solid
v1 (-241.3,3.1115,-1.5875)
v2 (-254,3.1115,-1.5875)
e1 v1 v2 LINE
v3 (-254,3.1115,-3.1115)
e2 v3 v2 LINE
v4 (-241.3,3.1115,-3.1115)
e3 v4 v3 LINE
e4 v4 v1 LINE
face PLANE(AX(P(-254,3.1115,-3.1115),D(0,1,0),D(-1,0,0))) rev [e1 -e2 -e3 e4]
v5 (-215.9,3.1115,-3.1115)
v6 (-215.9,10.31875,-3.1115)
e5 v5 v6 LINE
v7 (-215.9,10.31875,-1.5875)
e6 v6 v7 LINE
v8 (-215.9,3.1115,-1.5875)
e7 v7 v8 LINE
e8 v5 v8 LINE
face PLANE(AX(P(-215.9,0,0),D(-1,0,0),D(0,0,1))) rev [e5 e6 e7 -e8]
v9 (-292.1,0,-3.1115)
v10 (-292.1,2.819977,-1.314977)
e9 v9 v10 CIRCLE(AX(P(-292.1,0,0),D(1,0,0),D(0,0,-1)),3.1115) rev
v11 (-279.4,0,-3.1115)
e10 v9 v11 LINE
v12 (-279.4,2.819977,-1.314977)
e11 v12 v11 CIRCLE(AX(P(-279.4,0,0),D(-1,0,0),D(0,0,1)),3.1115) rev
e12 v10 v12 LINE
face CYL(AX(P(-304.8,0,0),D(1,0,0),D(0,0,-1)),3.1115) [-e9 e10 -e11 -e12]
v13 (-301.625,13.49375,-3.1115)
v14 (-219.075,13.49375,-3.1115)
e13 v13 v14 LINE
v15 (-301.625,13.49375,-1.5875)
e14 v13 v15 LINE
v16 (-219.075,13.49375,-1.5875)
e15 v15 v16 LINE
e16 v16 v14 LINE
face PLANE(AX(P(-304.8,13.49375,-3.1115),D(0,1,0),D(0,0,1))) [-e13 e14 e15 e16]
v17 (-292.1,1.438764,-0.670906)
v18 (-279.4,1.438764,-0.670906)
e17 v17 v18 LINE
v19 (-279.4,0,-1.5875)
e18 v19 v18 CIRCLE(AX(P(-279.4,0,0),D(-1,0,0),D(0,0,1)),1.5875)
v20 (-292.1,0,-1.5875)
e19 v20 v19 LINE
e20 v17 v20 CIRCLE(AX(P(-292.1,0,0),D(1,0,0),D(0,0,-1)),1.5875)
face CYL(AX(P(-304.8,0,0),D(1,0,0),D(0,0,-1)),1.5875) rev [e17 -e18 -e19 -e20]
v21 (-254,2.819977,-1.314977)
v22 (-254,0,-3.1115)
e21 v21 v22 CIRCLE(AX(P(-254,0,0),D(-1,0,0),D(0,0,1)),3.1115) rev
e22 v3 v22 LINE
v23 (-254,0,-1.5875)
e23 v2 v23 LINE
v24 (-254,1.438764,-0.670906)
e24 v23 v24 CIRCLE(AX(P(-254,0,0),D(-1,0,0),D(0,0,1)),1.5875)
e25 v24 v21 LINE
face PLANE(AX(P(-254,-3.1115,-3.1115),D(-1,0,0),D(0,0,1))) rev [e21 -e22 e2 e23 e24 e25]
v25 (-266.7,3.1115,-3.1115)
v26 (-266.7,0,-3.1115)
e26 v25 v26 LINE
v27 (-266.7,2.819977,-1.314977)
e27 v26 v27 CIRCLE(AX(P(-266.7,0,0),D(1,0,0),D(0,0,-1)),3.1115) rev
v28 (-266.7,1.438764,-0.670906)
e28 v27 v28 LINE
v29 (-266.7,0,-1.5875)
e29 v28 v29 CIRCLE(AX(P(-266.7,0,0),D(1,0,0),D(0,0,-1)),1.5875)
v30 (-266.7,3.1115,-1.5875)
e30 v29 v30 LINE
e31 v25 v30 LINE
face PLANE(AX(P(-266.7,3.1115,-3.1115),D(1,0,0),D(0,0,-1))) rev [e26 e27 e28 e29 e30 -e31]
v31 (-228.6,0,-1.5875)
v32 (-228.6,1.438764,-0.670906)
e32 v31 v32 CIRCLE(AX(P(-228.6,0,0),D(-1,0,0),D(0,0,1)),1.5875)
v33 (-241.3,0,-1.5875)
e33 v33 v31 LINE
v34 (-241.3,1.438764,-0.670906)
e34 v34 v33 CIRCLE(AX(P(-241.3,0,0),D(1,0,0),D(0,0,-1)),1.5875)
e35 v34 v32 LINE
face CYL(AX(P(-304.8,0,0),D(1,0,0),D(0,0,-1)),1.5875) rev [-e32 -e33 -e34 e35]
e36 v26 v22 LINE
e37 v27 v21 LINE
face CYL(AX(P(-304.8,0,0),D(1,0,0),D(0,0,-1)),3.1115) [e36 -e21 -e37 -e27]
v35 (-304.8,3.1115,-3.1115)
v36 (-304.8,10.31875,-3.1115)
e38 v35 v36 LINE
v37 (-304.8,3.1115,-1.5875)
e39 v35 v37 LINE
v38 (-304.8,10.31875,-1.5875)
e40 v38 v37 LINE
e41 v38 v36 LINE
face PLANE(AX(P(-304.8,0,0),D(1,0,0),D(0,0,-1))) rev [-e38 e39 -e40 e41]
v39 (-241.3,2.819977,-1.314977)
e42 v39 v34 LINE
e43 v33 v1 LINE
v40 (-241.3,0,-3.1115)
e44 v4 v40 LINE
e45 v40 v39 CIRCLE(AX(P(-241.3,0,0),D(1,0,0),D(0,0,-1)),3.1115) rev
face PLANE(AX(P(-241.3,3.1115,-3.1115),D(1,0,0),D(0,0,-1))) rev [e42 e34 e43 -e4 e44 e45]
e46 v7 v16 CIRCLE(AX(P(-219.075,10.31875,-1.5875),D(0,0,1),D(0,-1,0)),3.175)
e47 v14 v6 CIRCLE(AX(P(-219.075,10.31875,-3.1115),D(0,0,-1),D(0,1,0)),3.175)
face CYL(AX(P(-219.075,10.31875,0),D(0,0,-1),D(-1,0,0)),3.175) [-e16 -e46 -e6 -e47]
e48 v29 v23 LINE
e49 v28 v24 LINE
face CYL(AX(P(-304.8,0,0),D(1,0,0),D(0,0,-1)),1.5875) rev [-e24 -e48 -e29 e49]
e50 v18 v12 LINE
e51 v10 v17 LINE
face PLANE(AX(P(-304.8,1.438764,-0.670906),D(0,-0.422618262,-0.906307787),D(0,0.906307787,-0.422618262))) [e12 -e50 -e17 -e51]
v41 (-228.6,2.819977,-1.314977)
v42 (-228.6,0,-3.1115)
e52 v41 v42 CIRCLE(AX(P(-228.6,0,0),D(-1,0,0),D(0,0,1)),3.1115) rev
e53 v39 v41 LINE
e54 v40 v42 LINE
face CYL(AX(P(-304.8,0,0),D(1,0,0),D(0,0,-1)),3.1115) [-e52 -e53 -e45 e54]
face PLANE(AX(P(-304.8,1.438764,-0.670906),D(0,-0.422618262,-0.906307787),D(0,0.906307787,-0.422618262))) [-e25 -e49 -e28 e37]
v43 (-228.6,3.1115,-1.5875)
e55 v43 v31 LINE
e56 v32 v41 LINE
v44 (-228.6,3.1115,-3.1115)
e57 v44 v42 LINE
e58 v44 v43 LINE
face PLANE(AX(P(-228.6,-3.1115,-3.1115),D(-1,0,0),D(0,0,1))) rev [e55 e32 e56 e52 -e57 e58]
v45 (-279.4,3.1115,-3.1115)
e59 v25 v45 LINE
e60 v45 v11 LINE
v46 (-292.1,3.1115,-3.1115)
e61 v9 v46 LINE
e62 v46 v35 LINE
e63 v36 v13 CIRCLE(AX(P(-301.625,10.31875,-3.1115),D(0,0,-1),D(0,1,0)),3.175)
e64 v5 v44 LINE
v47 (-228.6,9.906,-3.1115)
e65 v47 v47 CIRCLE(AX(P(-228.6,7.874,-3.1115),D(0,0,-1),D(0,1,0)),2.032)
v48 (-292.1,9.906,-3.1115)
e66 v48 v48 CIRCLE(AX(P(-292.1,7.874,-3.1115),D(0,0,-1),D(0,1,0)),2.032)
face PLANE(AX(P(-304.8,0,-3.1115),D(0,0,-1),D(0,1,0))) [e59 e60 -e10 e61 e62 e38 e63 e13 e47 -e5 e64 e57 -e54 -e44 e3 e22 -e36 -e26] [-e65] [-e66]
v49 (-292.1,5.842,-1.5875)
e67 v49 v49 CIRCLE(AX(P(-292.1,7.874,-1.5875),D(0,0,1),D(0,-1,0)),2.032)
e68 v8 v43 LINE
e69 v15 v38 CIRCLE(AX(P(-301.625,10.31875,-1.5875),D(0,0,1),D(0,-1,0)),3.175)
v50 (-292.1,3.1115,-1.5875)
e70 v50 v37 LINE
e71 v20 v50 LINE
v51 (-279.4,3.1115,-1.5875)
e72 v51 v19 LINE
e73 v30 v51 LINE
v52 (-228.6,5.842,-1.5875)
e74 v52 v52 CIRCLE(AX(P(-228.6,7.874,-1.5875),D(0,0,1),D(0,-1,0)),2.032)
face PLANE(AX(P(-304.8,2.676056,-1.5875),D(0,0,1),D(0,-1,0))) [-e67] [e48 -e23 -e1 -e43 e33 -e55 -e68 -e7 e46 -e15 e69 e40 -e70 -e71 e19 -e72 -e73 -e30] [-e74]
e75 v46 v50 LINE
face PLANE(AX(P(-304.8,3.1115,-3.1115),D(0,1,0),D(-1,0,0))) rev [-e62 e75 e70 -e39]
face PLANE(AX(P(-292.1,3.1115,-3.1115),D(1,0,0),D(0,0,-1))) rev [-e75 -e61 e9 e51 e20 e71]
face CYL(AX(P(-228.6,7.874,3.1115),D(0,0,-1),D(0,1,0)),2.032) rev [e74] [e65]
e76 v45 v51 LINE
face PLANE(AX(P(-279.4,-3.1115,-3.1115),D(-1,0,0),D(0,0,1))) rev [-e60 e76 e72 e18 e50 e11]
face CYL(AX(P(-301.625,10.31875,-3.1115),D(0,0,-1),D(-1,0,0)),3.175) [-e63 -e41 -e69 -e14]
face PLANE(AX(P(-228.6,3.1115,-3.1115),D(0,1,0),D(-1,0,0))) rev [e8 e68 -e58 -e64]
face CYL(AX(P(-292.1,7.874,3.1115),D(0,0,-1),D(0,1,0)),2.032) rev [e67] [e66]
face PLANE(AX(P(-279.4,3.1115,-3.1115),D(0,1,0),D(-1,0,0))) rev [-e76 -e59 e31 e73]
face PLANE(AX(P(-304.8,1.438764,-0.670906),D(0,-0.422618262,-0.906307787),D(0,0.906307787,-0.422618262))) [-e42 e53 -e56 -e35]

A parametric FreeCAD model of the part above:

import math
import FreeCAD as App
import Part
import Sketcher
from FreeCAD import Vector
Q = App.Units.Quantity


def edges_at(feature, points):
    """Names of the edges that pass closest to the given points."""
    edges = feature.Shape.Edges
    near = lambda p: min(range(len(edges)), key=lambda i: edges[i].distToShape(Part.Vertex(*p))[0])
    return sorted({f"Edge{near(p) + 1}" for p in points})


def add_polygon(sketch, points):
    """Adds a closed chain of lines whose ends are joined by coincident constraints."""
    first, n = sketch.GeometryCount, len(points)
    for a, b in zip(points, points[1:] + points[:1]):
        sketch.addGeometry(Part.LineSegment(App.Vector(*a, 0), App.Vector(*b, 0)), False)
    for i in range(n):
        sketch.addConstraint(Sketcher.Constraint("Coincident", first + i, 2, first + (i + 1) % n, 1))

doc = App.newDocument("Part")
body = doc.addObject("PartDesign::Body", "Body")

sketch1 = doc.addObject("Sketcher::SketchObject", "Sketch")
body.addObject(sketch1)
sketch1.AttachmentSupport = (doc.YZ_Plane, [""])
sketch1.MapMode = "FlatFace"
sketch1.addGeometry(Part.LineSegment(Vector(0, -1.5875, 0), Vector(-13.49375, -1.5875, 0)), False)
sketch1.addGeometry(Part.LineSegment(Vector(-13.49375, -1.5875, 0), Vector(-13.49375, -3.1115, 0)), False)
sketch1.addGeometry(Part.LineSegment(Vector(-13.49375, -3.1115, 0), Vector(0, -3.1115, 0)), False)
sketch1.addGeometry(Part.ArcOfCircle(Part.Circle(Vector(0, 0, 0), Vector(0, 0, 1), 3.1115), math.radians(-90), math.radians(205)), False)
sketch1.addGeometry(Part.LineSegment(Vector(-2.819977, -1.314977, 0), Vector(-1.438764, -0.670906, 0)), False)
sketch1.addGeometry(Part.ArcOfCircle(Part.Circle(Vector(0, 0, 0), Vector(0, 0, 1), 1.5875), math.radians(-90), math.radians(205)), False)
sketch1.addConstraint(Sketcher.Constraint("Coincident", 0, 2, 1, 1))
sketch1.addConstraint(Sketcher.Constraint("Coincident", 1, 2, 2, 1))
sketch1.addConstraint(Sketcher.Constraint("Tangent", 2, 2, 3, 1))
sketch1.addConstraint(Sketcher.Constraint("Coincident", 3, 2, 4, 1))
sketch1.addConstraint(Sketcher.Constraint("Coincident", 4, 2, 5, 2))
sketch1.addConstraint(Sketcher.Constraint("Tangent", 5, 1, 0, 1))
sketch1.addConstraint(Sketcher.Constraint("Horizontal", 0))
sketch1.addConstraint(Sketcher.Constraint("Vertical", 1))
sketch1.addConstraint(Sketcher.Constraint("Horizontal", 2))
sketch1.addConstraint(Sketcher.Constraint("Coincident", 3, 3, -1, 1))
sketch1.addConstraint(Sketcher.Constraint("Coincident", 5, 3, -1, 1))
sketch1.addConstraint(Sketcher.Constraint("Angle", 4, Q("25 deg")))
sketch1.addConstraint(Sketcher.Constraint("Radius", 5, Q("0.0625 in")))
sketch1.addConstraint(Sketcher.Constraint("DistanceY", 1, 2, 1, 1, Q("0.06 in")))
sketch1.addConstraint(Sketcher.Constraint("DistanceX", 0, 2, 0, 1, Q("0.53125 in")))
sketch1.addConstraint(Sketcher.Constraint("DistanceX", 3, 2, -1, 1, 2.819977))
pad1 = doc.addObject("PartDesign::Pad", "Pad")
body.addObject(pad1)
pad1.Profile = sketch1
pad1.Length = Q("24 in")
pad1.Midplane = True

sketch2 = doc.addObject("Sketcher::SketchObject", "Sketch001")
body.addObject(sketch2)
sketch2.AttachmentSupport = (doc.XY_Plane, [""])
sketch2.MapMode = "FlatFace"
add_polygon(sketch2, [(292.1, 3.1115), (292.1, -3.1115), (304.8, -3.1115), (304.8, 3.1115)])
sketch2.addConstraint(Sketcher.Constraint("Vertical", 0))
sketch2.addConstraint(Sketcher.Constraint("Horizontal", 1))
sketch2.addConstraint(Sketcher.Constraint("Vertical", 2))
sketch2.addConstraint(Sketcher.Constraint("Horizontal", 3))
sketch2.addConstraint(Sketcher.Constraint("DistanceX", 1, 1, 1, 2, Q("0.5 in")))
sketch2.addConstraint(Sketcher.Constraint("DistanceX", -1, 1, 1, 2, Q("12 in")))
sketch2.addConstraint(Sketcher.Constraint("DistanceY", 0, 2, 0, 1, Q("0.245 in")))
sketch2.addConstraint(Sketcher.Constraint("DistanceY", 0, 2, -1, 1, Q("0.1225 in")))
pocket1 = doc.addObject("PartDesign::Pocket", "Pocket")
body.addObject(pocket1)
pocket1.Profile = sketch2
pocket1.Length = 612.228818
pocket1.Midplane = True
doc.recompute()

linearpattern = doc.addObject("PartDesign::LinearPattern", "LinearPattern")
body.addObject(linearpattern)
linearpattern.Originals = [pocket1]
linearpattern.Direction = (doc.X_Axis, [""])
linearpattern.Mode = "offset"
linearpattern.Offset = Q("1 in")
linearpattern.Occurrences = 24
linearpattern.Reversed = True
body.Tip = linearpattern
body2 = doc.addObject("PartDesign::Body", "Body001")

sketch3 = doc.addObject("Sketcher::SketchObject", "Sketch002")
body2.addObject(sketch3)
sketch3.AttachmentSupport = (doc.getObject("YZ_Plane001"), [""])
sketch3.MapMode = "FlatFace"
sketch3.AttachmentOffset = App.Placement(Vector(0, 0, 12 * 25.4), App.Rotation())
sketch3.addGeometry(Part.LineSegment(Vector(13.49375, -1.5875, 0), Vector(0, -1.5875, 0)), False)
sketch3.addGeometry(Part.ArcOfCircle(Part.Circle(Vector(0, 0, 0), Vector(0, 0, 1), 1.5875), math.radians(-25), math.radians(270)), False)
sketch3.addGeometry(Part.LineSegment(Vector(1.438764, -0.670906, 0), Vector(2.819977, -1.314977, 0)), False)
sketch3.addGeometry(Part.ArcOfCircle(Part.Circle(Vector(0, 0, 0), Vector(0, 0, 1), 3.1115), math.radians(-25), math.radians(270)), False)
sketch3.addGeometry(Part.LineSegment(Vector(0, -3.1115, 0), Vector(13.49375, -3.1115, 0)), False)
sketch3.addGeometry(Part.LineSegment(Vector(13.49375, -3.1115, 0), Vector(13.49375, -1.5875, 0)), False)
sketch3.addConstraint(Sketcher.Constraint("Tangent", 0, 2, 1, 2))
sketch3.addConstraint(Sketcher.Constraint("Coincident", 1, 1, 2, 1))
sketch3.addConstraint(Sketcher.Constraint("Coincident", 2, 2, 3, 1))
sketch3.addConstraint(Sketcher.Constraint("Tangent", 3, 2, 4, 1))
sketch3.addConstraint(Sketcher.Constraint("Coincident", 4, 2, 5, 1))
sketch3.addConstraint(Sketcher.Constraint("Coincident", 5, 2, 0, 1))
sketch3.addConstraint(Sketcher.Constraint("Horizontal", 0))
sketch3.addConstraint(Sketcher.Constraint("Horizontal", 4))
sketch3.addConstraint(Sketcher.Constraint("Vertical", 5))
sketch3.addConstraint(Sketcher.Constraint("Coincident", 1, 3, -1, 1))
sketch3.addConstraint(Sketcher.Constraint("Coincident", 3, 3, -1, 1))
sketch3.addConstraint(Sketcher.Constraint("Angle", 2, Q("-25 deg")))
sketch3.addConstraint(Sketcher.Constraint("Radius", 1, Q("0.0625 in")))
sketch3.addConstraint(Sketcher.Constraint("DistanceY", 5, 1, 5, 2, Q("0.06 in")))
sketch3.addConstraint(Sketcher.Constraint("DistanceX", 0, 2, 0, 1, Q("0.53125 in")))
sketch3.addConstraint(Sketcher.Constraint("DistanceX", -1, 1, 1, 1, 1.438764))
pad2 = doc.addObject("PartDesign::Pad", "Pad001")
body2.addObject(pad2)
pad2.Profile = sketch3
pad2.Length = Q("24 in")
pad2.Reversed = True

sketch4 = doc.addObject("Sketcher::SketchObject", "Sketch003")
body2.addObject(sketch4)
sketch4.AttachmentSupport = (doc.getObject("XY_Plane001"), [""])
sketch4.MapMode = "FlatFace"
add_polygon(sketch4, [(279.4, 3.1115), (279.4, -3.1115), (292.1, -3.1115), (292.1, 3.1115)])
sketch4.addConstraint(Sketcher.Constraint("Vertical", 0))
sketch4.addConstraint(Sketcher.Constraint("Horizontal", 1))
sketch4.addConstraint(Sketcher.Constraint("Vertical", 2))
sketch4.addConstraint(Sketcher.Constraint("Horizontal", 3))
sketch4.addConstraint(Sketcher.Constraint("DistanceX", 1, 1, 1, 2, Q("0.5 in")))
sketch4.addConstraint(Sketcher.Constraint("DistanceX", -1, 1, 0, 2, Q("11 in")))
sketch4.addConstraint(Sketcher.Constraint("DistanceY", 0, 2, 0, 1, Q("0.245 in")))
sketch4.addConstraint(Sketcher.Constraint("DistanceY", 0, 2, -1, 1, Q("0.1225 in")))
pocket2 = doc.addObject("PartDesign::Pocket", "Pocket001")
body2.addObject(pocket2)
pocket2.Profile = sketch4
pocket2.Length = 612.228818
pocket2.Midplane = True
doc.recompute()

linearpattern2 = doc.addObject("PartDesign::LinearPattern", "LinearPattern001")
body2.addObject(linearpattern2)
linearpattern2.Originals = [pocket2]
linearpattern2.Direction = (doc.getObject("X_Axis001"), [""])
linearpattern2.Mode = "offset"
linearpattern2.Offset = Q("1 in")
linearpattern2.Occurrences = 24
linearpattern2.Reversed = True
body2.Tip = linearpattern2
body3 = doc.addObject("PartDesign::Body", "Body002")

sketch5 = doc.addObject("Sketcher::SketchObject", "Sketch004")
body3.addObject(sketch5)
sketch5.AttachmentSupport = (doc.getObject("YZ_Plane002"), [""])
sketch5.MapMode = "FlatFace"
sketch5.AttachmentOffset = App.Placement(Vector(0, 0, 12 * 25.4), App.Rotation())
sketch5.addGeometry(Part.Circle(Vector(0, 0, 0), Vector(0, 0, 1), 1.5875), False)
sketch5.addConstraint(Sketcher.Constraint("Coincident", 0, 3, -1, 1))
sketch5.addConstraint(Sketcher.Constraint("Diameter", 0, Q("0.125 in")))
pad3 = doc.addObject("PartDesign::Pad", "Pad002")
body3.addObject(pad3)
pad3.Profile = sketch5
pad3.Length = Q("24 in")
pad3.Reversed = True
doc.recompute()

chamfer = doc.addObject("PartDesign::Chamfer", "Chamfer")
body3.addObject(chamfer)
chamfer.Base = (pad3, edges_at(pad3, [(304.8, 0, 1.587), (-304.8, 0, 1.587)]))
chamfer.Size = Q("0.0125 in")
body4 = doc.addObject("PartDesign::Body", "Body003")

sketch6 = doc.addObject("Sketcher::SketchObject", "Sketch005")
body4.addObject(sketch6)
sketch6.AttachmentSupport = (doc.getObject("YZ_Plane003"), [""])
sketch6.MapMode = "FlatFace"
sketch6.AttachmentOffset = App.Placement(Vector(0, 0, -8.5 * 25.4), App.Rotation())
add_polygon(sketch6, [(15.033138, -5.881236), (-15.033138, -5.881236), (-15.033138, 5.881236), (15.033138, 5.881236)])
sketch6.addConstraint(Sketcher.Constraint("Horizontal", 0))
sketch6.addConstraint(Sketcher.Constraint("Vertical", 1))
sketch6.addConstraint(Sketcher.Constraint("Horizontal", 2))
sketch6.addConstraint(Sketcher.Constraint("Vertical", 3))
sketch6.addConstraint(Sketcher.Constraint("Symmetric", 0, 2, 2, 2, -1, 1))
sketch6.addConstraint(Sketcher.Constraint("DistanceY", 1, 1, 1, 2, 11.762471))
sketch6.addConstraint(Sketcher.Constraint("DistanceX", 0, 2, 0, 1, 30.066276))
pad4 = doc.addObject("PartDesign::Pad", "Pad003")
body4.addObject(pad4)
pad4.Profile = sketch6
pad4.Length = 521.857265
doc.recompute()

body5 = doc.addObject("PartDesign::Body", "Body004")
body5.BaseFeature = body4
boolean = doc.addObject("PartDesign::Boolean", "Boolean")
body.addObject(boolean)
boolean.Type = "Cut"
boolean.addObjects([body5])
doc.recompute()

body6 = doc.addObject("PartDesign::Body", "Body005")
body6.BaseFeature = body4
boolean2 = doc.addObject("PartDesign::Boolean", "Boolean001")
body2.addObject(boolean2)
boolean2.Type = "Cut"
boolean2.addObjects([body6])
doc.recompute()

fillet = doc.addObject("PartDesign::Fillet", "Fillet")
body2.addObject(fillet)
fillet.Base = (boolean2, edges_at(boolean2, [(-304.8, 13.494, -2.349), (-215.9, 13.494, -2.349)]))
fillet.Radius = Q("0.125 in")

sketch7 = doc.addObject("Sketcher::SketchObject", "Sketch006")
body2.addObject(sketch7)
sketch7.AttachmentSupport = (doc.getObject("XY_Plane001"), [""])
sketch7.MapMode = "FlatFace"
sketch7.AttachmentOffset = App.Placement(Vector(0, 0, -0.1225 * 25.4), App.Rotation())
sketch7.addGeometry(Part.Circle(Vector(-228.6, 7.874, 0), Vector(0, 0, 1), 2.032), False)
sketch7.addGeometry(Part.Circle(Vector(-292.1, 7.874, 0), Vector(0, 0, 1), 2.032), False)
sketch7.addConstraint(Sketcher.Constraint("Equal", 0, 1))
sketch7.addConstraint(Sketcher.Constraint("Horizontal", 0, 3, 1, 3))
sketch7.addConstraint(Sketcher.Constraint("Diameter", 0, Q("0.16 in")))
sketch7.addConstraint(Sketcher.Constraint("DistanceX", 0, 3, -1, 1, Q("9 in")))
sketch7.addConstraint(Sketcher.Constraint("DistanceX", 1, 3, -1, 1, Q("11.5 in")))
sketch7.addConstraint(Sketcher.Constraint("DistanceY", -1, 1, 0, 3, Q("0.31 in")))
pocket3 = doc.addObject("PartDesign::Pocket", "Pocket002")
body2.addObject(pocket3)
pocket3.Profile = sketch7
pocket3.Type = "ThroughAll"
pocket3.Reversed = True
doc.recompute()

boolean3 = doc.addObject("PartDesign::Boolean", "Boolean002")
body3.addObject(boolean3)
boolean3.Type = "Cut"
boolean3.addObjects([body4])
body.Visibility = False
body3.Visibility = False

doc.recompute()
